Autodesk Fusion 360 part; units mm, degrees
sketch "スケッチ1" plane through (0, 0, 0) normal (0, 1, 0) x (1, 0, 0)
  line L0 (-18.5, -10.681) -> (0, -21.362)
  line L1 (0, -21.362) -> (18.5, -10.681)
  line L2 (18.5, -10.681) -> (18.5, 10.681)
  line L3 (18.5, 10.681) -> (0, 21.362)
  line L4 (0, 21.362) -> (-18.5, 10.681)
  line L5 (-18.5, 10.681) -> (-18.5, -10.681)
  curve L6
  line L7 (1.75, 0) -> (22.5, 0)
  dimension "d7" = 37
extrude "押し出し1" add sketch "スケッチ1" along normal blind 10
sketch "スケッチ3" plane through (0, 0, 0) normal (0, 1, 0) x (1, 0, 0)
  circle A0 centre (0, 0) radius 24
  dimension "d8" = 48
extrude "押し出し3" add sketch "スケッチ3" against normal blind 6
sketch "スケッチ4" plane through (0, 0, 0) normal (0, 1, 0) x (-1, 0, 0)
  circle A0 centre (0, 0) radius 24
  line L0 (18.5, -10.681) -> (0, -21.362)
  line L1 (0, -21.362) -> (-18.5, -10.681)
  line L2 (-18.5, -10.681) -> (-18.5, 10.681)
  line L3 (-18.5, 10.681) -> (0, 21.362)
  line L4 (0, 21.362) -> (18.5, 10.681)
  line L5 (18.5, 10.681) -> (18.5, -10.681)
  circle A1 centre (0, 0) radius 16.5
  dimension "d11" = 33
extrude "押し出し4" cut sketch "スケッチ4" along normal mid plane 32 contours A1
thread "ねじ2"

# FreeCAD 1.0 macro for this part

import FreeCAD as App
import Part
import Sketcher

V = App.Vector
Q = App.Units.Quantity


def add_polygon(sketch, points):
    """Adds a closed chain of lines whose ends are joined by coincident constraints."""
    first, n = sketch.GeometryCount, len(points)
    for a, b in zip(points, points[1:] + points[:1]):
        sketch.addGeometry(Part.LineSegment(App.Vector(*a, 0), App.Vector(*b, 0)), False)
    for i in range(n):
        sketch.addConstraint(Sketcher.Constraint("Coincident", first + i, 2, first + (i + 1) % n, 1))

doc = App.newDocument("Part")
body = doc.addObject("PartDesign::Body", "Body")

sketch1 = doc.addObject("Sketcher::SketchObject", "Sketch")
body.addObject(sketch1)
sketch1.AttachmentSupport = (doc.XZ_Plane, [""])
sketch1.MapMode = "FlatFace"
add_polygon(sketch1, [(-18, -11), (-18, 11), (0, 21), (18, 11), (18, -11), (0, -21)])
sketch1.addConstraint([
    Sketcher.Constraint("Vertical", 0),
    Sketcher.Constraint("Vertical", 3),
    Sketcher.Constraint("Symmetric", 0, 2, 3, 2, -1, 1),
    Sketcher.Constraint("Symmetric", 1, 2, 4, 2, -1, 1),
    Sketcher.Constraint("PointOnObject", 1, 2, -2),
    Sketcher.Constraint("Parallel", 2, 5),
    Sketcher.Constraint("Horizontal", 0, 2, 2, 2),
    Sketcher.Constraint("DistanceX", 0, 2, 2, 2, Q("37 mm")),
    Sketcher.Constraint("Angle", 1, Q("30 deg")),
    Sketcher.Constraint("DistanceY", 0, 1, 0, 2, Q("21.362 mm")),
])
pad1 = doc.addObject("PartDesign::Pad", "Pad")
body.addObject(pad1)
pad1.Profile = sketch1
pad1.Length = 10
pad1.Reversed = True

sketch2 = doc.addObject("Sketcher::SketchObject", "Sketch001")
body.addObject(sketch2)
sketch2.AttachmentSupport = (doc.XZ_Plane, [""])
sketch2.MapMode = "FlatFace"
sketch2.addGeometry(Part.Circle(V(0, 0, 0), V(0, 0, 1), 24), False)
sketch2.addConstraint([
    Sketcher.Constraint("Coincident", 0, 3, -1, 1),
    Sketcher.Constraint("Diameter", 0, Q("48 mm")),
])
pad2 = doc.addObject("PartDesign::Pad", "Pad001")
body.addObject(pad2)
pad2.Profile = sketch2
pad2.Length = 6

sketch3 = doc.addObject("Sketcher::SketchObject", "Sketch002")
body.addObject(sketch3)
sketch3.AttachmentSupport = (doc.XZ_Plane, [""])
sketch3.MapMode = "FlatFace"
sketch3.addGeometry(Part.Circle(V(0, 0, 0), V(0, 0, 1), 16), False)
sketch3.addConstraint([
    Sketcher.Constraint("Coincident", 0, 3, -1, 1),
    Sketcher.Constraint("Diameter", 0, Q("33 mm")),
])
pocket1 = doc.addObject("PartDesign::Pocket", "Pocket")
body.addObject(pocket1)
pocket1.Profile = sketch3
pocket1.Length = 32
pocket1.Midplane = True

doc.recompute()
